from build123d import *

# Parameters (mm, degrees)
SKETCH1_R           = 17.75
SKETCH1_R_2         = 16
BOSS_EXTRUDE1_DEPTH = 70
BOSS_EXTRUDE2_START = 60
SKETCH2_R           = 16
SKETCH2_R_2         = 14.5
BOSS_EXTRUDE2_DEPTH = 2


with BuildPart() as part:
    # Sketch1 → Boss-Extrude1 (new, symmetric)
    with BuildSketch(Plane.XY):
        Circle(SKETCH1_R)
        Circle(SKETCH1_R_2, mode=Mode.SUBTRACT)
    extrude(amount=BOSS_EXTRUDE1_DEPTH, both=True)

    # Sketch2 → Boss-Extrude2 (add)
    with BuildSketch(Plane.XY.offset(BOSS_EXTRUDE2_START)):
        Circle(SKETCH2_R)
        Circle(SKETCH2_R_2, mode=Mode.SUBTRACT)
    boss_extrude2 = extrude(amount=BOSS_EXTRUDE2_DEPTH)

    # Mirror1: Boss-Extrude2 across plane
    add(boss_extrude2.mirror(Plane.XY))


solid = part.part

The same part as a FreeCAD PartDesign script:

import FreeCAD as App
import Part
import Sketcher
Q = App.Units.Quantity

doc = App.newDocument("Part")
body = doc.addObject("PartDesign::Body", "Body")

# Sketch on XY plane
sketch1 = body.newObject("Sketcher::SketchObject", "Sketch")
sketch1.AttachmentSupport = (doc.getObject("XY_Plane"), [""])
sketch1.MapMode = "FlatFace"
sketch1.addGeometry(Part.Circle(App.Vector(0, 0, 0), App.Vector(0, 0, 1), 17.75), False)
sketch1.addGeometry(Part.Circle(App.Vector(0, 0, 0), App.Vector(0, 0, 1), 16), False)
sketch1.addConstraint(Sketcher.Constraint("Coincident", 0, 3, -1, 1))
sketch1.addConstraint(Sketcher.Constraint("Coincident", 1, 3, -1, 1))
sketch1.addConstraint(Sketcher.Constraint("Diameter", 1, Q("32 mm")))
sketch1.addConstraint(Sketcher.Constraint("Diameter", 0, Q("35.5 mm")))
pad1 = body.newObject("PartDesign::Pad", "Pad")
pad1.Profile = sketch1
pad1.Length = 140
pad1.Midplane = True

# Sketch on XY plane
sketch2 = body.newObject("Sketcher::SketchObject", "Sketch001")
sketch2.AttachmentSupport = (doc.getObject("XY_Plane"), [""])
sketch2.MapMode = "FlatFace"
sketch2.AttachmentOffset = App.Placement(App.Vector(0, 0, 60), App.Rotation())
sketch2.addGeometry(Part.Circle(App.Vector(0, 0, 0), App.Vector(0, 0, 1), 16), False)
sketch2.addGeometry(Part.Circle(App.Vector(0, 0, 0), App.Vector(0, 0, 1), 14.5), False)
sketch2.addConstraint(Sketcher.Constraint("Coincident", 0, 3, -1, 1))
sketch2.addConstraint(Sketcher.Constraint("Coincident", 1, 3, -1, 1))
sketch2.addConstraint(Sketcher.Constraint("Diameter", 0, Q("32 mm")))
sketch2.addConstraint(Sketcher.Constraint("Diameter", 1, Q("29 mm")))
pad2 = body.newObject("PartDesign::Pad", "Pad001")
pad2.Profile = sketch2
pad2.Length = 2
doc.recompute()

mirrored = body.newObject("PartDesign::Mirrored", "Mirrored")
mirrored.Originals = [pad2]
mirrored.MirrorPlane = (doc.getObject("XY_Plane"), [""])
body.Tip = mirrored

doc.recompute()
